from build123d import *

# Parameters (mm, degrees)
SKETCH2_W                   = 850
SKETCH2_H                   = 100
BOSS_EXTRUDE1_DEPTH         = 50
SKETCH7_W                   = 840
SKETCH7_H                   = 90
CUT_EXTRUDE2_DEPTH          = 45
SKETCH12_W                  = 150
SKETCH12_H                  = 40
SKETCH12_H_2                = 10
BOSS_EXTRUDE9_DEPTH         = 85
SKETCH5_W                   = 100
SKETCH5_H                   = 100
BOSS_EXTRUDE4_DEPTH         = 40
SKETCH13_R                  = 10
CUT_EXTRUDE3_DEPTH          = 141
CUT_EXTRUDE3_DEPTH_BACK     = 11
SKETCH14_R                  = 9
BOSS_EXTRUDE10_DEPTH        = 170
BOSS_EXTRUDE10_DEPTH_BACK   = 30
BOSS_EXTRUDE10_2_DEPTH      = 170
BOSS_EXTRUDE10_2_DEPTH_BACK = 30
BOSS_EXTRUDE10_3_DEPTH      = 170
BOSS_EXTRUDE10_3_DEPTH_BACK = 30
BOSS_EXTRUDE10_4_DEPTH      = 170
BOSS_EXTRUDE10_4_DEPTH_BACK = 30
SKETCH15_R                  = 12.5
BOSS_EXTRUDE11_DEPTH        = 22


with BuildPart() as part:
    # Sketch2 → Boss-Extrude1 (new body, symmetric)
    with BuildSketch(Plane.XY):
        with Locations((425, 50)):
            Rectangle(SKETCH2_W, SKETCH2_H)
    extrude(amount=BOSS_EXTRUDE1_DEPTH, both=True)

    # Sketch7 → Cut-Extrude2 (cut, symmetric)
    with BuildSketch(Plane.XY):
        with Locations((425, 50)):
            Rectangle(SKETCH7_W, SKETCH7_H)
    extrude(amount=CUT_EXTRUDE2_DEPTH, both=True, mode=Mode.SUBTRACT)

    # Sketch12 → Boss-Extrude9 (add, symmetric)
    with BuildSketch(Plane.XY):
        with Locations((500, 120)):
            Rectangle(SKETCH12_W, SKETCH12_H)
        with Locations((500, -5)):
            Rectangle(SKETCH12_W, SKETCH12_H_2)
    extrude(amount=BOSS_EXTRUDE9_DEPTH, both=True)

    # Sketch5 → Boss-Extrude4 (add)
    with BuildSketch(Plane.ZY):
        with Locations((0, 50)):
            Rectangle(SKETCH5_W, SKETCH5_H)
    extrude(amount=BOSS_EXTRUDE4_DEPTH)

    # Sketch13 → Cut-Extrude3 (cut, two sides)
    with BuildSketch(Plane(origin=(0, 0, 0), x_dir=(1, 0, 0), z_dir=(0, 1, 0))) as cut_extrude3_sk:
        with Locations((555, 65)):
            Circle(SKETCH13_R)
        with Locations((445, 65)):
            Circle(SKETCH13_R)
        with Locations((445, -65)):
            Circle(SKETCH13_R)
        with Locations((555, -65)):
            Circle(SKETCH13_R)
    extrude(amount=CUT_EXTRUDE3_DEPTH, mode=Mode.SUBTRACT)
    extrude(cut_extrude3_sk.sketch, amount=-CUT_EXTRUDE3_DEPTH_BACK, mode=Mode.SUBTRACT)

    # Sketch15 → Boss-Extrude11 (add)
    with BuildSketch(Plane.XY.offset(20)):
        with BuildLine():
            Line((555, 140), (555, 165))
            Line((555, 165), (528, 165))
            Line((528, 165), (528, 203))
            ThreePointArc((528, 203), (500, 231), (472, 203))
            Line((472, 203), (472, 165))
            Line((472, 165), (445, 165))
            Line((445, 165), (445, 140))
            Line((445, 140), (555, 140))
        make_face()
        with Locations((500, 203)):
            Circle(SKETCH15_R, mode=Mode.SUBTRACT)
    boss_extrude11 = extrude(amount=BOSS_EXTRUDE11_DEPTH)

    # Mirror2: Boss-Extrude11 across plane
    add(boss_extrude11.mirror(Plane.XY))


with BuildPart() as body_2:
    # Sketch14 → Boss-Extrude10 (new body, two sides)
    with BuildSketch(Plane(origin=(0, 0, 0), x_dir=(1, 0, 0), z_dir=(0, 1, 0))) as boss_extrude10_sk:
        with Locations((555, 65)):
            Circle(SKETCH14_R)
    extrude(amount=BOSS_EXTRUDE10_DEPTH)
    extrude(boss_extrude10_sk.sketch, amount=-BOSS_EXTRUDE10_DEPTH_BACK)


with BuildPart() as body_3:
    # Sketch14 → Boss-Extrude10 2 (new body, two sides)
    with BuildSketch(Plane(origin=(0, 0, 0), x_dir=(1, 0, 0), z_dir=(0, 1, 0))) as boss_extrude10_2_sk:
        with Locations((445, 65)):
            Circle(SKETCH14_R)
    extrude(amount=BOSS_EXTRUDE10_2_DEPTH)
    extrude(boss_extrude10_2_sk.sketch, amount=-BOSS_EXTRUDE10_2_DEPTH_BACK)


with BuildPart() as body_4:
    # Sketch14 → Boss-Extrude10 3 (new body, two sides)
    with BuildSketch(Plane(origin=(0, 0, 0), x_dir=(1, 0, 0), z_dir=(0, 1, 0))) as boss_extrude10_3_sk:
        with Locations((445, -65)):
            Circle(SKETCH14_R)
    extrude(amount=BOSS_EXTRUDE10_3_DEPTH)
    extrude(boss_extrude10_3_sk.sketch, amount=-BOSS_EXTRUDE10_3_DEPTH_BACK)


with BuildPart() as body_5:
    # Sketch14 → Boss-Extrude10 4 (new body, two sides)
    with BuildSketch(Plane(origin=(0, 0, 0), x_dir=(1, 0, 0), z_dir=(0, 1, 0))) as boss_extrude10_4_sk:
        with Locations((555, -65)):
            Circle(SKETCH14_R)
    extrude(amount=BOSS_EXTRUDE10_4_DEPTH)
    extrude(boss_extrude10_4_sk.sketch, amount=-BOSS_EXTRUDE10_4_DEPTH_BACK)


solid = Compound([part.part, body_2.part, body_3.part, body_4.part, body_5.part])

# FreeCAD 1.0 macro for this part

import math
import FreeCAD as App
import Part
import Sketcher
from FreeCAD import Vector


def add_polygon(sketch, points):
    """Adds a closed chain of lines whose ends are joined by coincident constraints."""
    first, n = sketch.GeometryCount, len(points)
    for a, b in zip(points, points[1:] + points[:1]):
        sketch.addGeometry(Part.LineSegment(App.Vector(*a, 0), App.Vector(*b, 0)), False)
    for i in range(n):
        sketch.addConstraint(Sketcher.Constraint("Coincident", first + i, 2, first + (i + 1) % n, 1))

doc = App.newDocument("Part")
body = doc.addObject("PartDesign::Body", "Body")

# Sketch on XY plane
sketch1 = body.newObject("Sketcher::SketchObject", "Sketch")
sketch1.AttachmentSupport = (doc.getObject("XY_Plane"), [""])
sketch1.MapMode = "FlatFace"
add_polygon(sketch1, [(0, 100), (0, 0), (850, 0), (850, 100)])  # lines 0-3
sketch1.addConstraint([
    Sketcher.Constraint("Vertical", 0),
    Sketcher.Constraint("Horizontal", 1),
    Sketcher.Constraint("Vertical", 2),
    Sketcher.Constraint("Horizontal", 3),
    Sketcher.Constraint("Coincident", 0, 2, -1, 1),
    Sketcher.Constraint("DistanceX", 1, 1, 1, 2, 850.0),
    Sketcher.Constraint("DistanceY", 0, 2, 0, 1, 100.0),
])
pad1 = body.newObject("PartDesign::Pad", "Pad")
pad1.Profile = sketch1
pad1.Length = 100
pad1.Midplane = True

# Sketch on XY plane
sketch2 = body.newObject("Sketcher::SketchObject", "Sketch001")
sketch2.AttachmentSupport = (doc.getObject("XY_Plane"), [""])
sketch2.MapMode = "FlatFace"
add_polygon(sketch2, [(5, 95), (5, 5), (845, 5), (845, 95)])  # lines 0-3
sketch2.addConstraint([
    Sketcher.Constraint("Vertical", 0),
    Sketcher.Constraint("Horizontal", 1),
    Sketcher.Constraint("Vertical", 2),
    Sketcher.Constraint("Horizontal", 3),
    Sketcher.Constraint("DistanceX", 1, 1, 1, 2, 840.0),
    Sketcher.Constraint("DistanceY", 0, 2, 0, 1, 90.0),
    Sketcher.Constraint("DistanceX", -1, 1, 0, 2, 5.0),
    Sketcher.Constraint("DistanceY", -1, 1, 0, 2, 5.0),
])
pocket1 = body.newObject("PartDesign::Pocket", "Pocket")
pocket1.Profile = sketch2
pocket1.Length = 90
pocket1.Midplane = True

# Sketch on XY plane
sketch3 = body.newObject("Sketcher::SketchObject", "Sketch002")
sketch3.AttachmentSupport = (doc.getObject("XY_Plane"), [""])
sketch3.MapMode = "FlatFace"
add_polygon(sketch3, [(425, 140), (425, 100), (575, 100), (575, 140)])  # lines 0-3
add_polygon(sketch3, [(425, 0), (425, -10), (575, -10), (575, 0)])  # lines 4-7
sketch3.addConstraint([
    Sketcher.Constraint("Vertical", 0),
    Sketcher.Constraint("Horizontal", 1),
    Sketcher.Constraint("Vertical", 2),
    Sketcher.Constraint("Horizontal", 3),
    Sketcher.Constraint("Vertical", 4),
    Sketcher.Constraint("Horizontal", 5),
    Sketcher.Constraint("Vertical", 6),
    Sketcher.Constraint("Horizontal", 7),
    Sketcher.Constraint("PointOnObject", 6, 2, -1),
    Sketcher.Constraint("Vertical", 3, 2, 4, 2),
    Sketcher.Constraint("Vertical", 2, 2, 5, 2),
    Sketcher.Constraint("DistanceX", 1, 1, 1, 2, 150.0),
    Sketcher.Constraint("DistanceY", 0, 2, 0, 1, 40.0),
    Sketcher.Constraint("DistanceY", 4, 2, 4, 1, 10.0),
    Sketcher.Constraint("DistanceX", -1, 1, 0, 2, 425.0),
    Sketcher.Constraint("DistanceY", -1, 1, 0, 2, 100.0),
])
pad2 = body.newObject("PartDesign::Pad", "Pad001")
pad2.Profile = sketch3
pad2.Length = 170
pad2.Midplane = True

# Sketch on YZ plane
sketch4 = body.newObject("Sketcher::SketchObject", "Sketch003")
sketch4.AttachmentSupport = (doc.getObject("YZ_Plane"), [""])
sketch4.MapMode = "FlatFace"
add_polygon(sketch4, [(100, -50), (0, -50), (0, 50), (100, 50)])  # lines 0-3
sketch4.addConstraint([
    Sketcher.Constraint("Horizontal", 0),
    Sketcher.Constraint("Vertical", 1),
    Sketcher.Constraint("Horizontal", 2),
    Sketcher.Constraint("Vertical", 3),
    Sketcher.Constraint("Symmetric", 0, 2, 1, 2, -1, 1),
    Sketcher.Constraint("Equal", 2, 1),
    Sketcher.Constraint("DistanceX", 0, 2, 0, 1, 100.0),
])
pad3 = body.newObject("PartDesign::Pad", "Pad002")
pad3.Profile = sketch4
pad3.Length = 40
pad3.Reversed = True

# Sketch on XZ plane
sketch5 = body.newObject("Sketcher::SketchObject", "Sketch004")
sketch5.AttachmentSupport = (doc.getObject("XZ_Plane"), [""])
sketch5.MapMode = "FlatFace"
sketch5.addGeometry([
    Part.Circle(Vector(555, -65, 0), Vector(0, 0, 1), 10),
    Part.Circle(Vector(445, -65, 0), Vector(0, 0, 1), 10),
    Part.Circle(Vector(445, 65, 0), Vector(0, 0, 1), 10),
    Part.Circle(Vector(555, 65, 0), Vector(0, 0, 1), 10),
], False)
sketch5.addConstraint([
    Sketcher.Constraint("Equal", 0, 1),
    Sketcher.Constraint("Equal", 1, 2),
    Sketcher.Constraint("Equal", 2, 3),
    Sketcher.Constraint("Symmetric", 1, 3, 2, 3, -1),
    Sketcher.Constraint("Symmetric", 0, 3, 3, 3, -1),
    Sketcher.Constraint("Horizontal", 0, 3, 1, 3),
    Sketcher.Constraint("Diameter", 0, 20.0),
    Sketcher.Constraint("DistanceX", -1, 1, 0, 3, 555.0),
    Sketcher.Constraint("DistanceY", 0, 3, -1, 1, 65.0),
    Sketcher.Constraint("DistanceX", -1, 1, 1, 3, 445.0),
])
pocket2 = body.newObject("PartDesign::Pocket", "Pocket001")
pocket2.Profile = sketch5
pocket2.Type = "ThroughAll"
pocket2.Midplane = True

# Sketch on XY plane
sketch6 = body.newObject("Sketcher::SketchObject", "Sketch005")
sketch6.AttachmentSupport = (doc.getObject("XY_Plane"), [""])
sketch6.MapMode = "FlatFace"
sketch6.AttachmentOffset = App.Placement(Vector(0, 0, 20), App.Rotation())
sketch6.addGeometry([
    Part.LineSegment(Vector(555, 140, 0), Vector(555, 165, 0)),  # 0
    Part.LineSegment(Vector(555, 165, 0), Vector(528, 165, 0)),  # 1
    Part.LineSegment(Vector(528, 165, 0), Vector(528, 203, 0)),  # 2
    Part.ArcOfCircle(Part.Circle(Vector(500, 203, 0), Vector(0, 0, 1), 28), math.radians(0), math.radians(180)),  # 3
    Part.LineSegment(Vector(472, 203, 0), Vector(472, 165, 0)),  # 4
    Part.LineSegment(Vector(472, 165, 0), Vector(445, 165, 0)),  # 5
    Part.LineSegment(Vector(445, 165, 0), Vector(445, 140, 0)),  # 6
    Part.LineSegment(Vector(445, 140, 0), Vector(555, 140, 0)),  # 7
    Part.Circle(Vector(500, 203, 0), Vector(0, 0, 1), 12),  # 8
], False)
sketch6.addConstraint([
    Sketcher.Constraint("Coincident", 0, 2, 1, 1),
    Sketcher.Constraint("Coincident", 1, 2, 2, 1),
    Sketcher.Constraint("Tangent", 2, 2, 3, 1),
    Sketcher.Constraint("Tangent", 3, 2, 4, 1),
    Sketcher.Constraint("Coincident", 4, 2, 5, 1),
    Sketcher.Constraint("Coincident", 5, 2, 6, 1),
    Sketcher.Constraint("Coincident", 6, 2, 7, 1),
    Sketcher.Constraint("Coincident", 7, 2, 0, 1),
    Sketcher.Constraint("Vertical", 0),
    Sketcher.Constraint("Horizontal", 1),
    Sketcher.Constraint("Vertical", 2),
    Sketcher.Constraint("Vertical", 4),
    Sketcher.Constraint("Horizontal", 5),
    Sketcher.Constraint("Vertical", 6),
    Sketcher.Constraint("Horizontal", 7),
    Sketcher.Constraint("Coincident", 8, 3, 3, 3),
    Sketcher.Constraint("Horizontal", 1, 2, 4, 2),
    Sketcher.Constraint("Equal", 1, 5),
    Sketcher.Constraint("Diameter", 8, 25.0),
    Sketcher.Constraint("Radius", 3, 28.0),
    Sketcher.Constraint("DistanceX", 1, 2, 1, 1, 27.0),
    Sketcher.Constraint("DistanceY", 0, 1, 0, 2, 25.0),
    Sketcher.Constraint("DistanceY", 2, 1, 2, 2, 38.0),
    Sketcher.Constraint("DistanceX", -1, 1, 3, 3, 500.0),
    Sketcher.Constraint("DistanceY", -1, 1, 3, 3, 203.0),
])
pad4 = body.newObject("PartDesign::Pad", "Pad003")
pad4.Profile = sketch6
pad4.Length = 22
doc.recompute()

mirrored = body.newObject("PartDesign::Mirrored", "Mirrored")
mirrored.Originals = [pad4]
mirrored.MirrorPlane = (doc.getObject("XY_Plane"), [""])
body.Tip = mirrored
body2 = doc.addObject("PartDesign::Body", "Body001")

# Sketch on XZ plane
sketch7 = body2.newObject("Sketcher::SketchObject", "Sketch006")
sketch7.AttachmentSupport = (doc.getObject("XZ_Plane001"), [""])
sketch7.MapMode = "FlatFace"
sketch7.addGeometry(Part.Circle(Vector(555, -65, 0), Vector(0, 0, 1), 9), False)
sketch7.addConstraint([
    Sketcher.Constraint("Diameter", 0, 18.0),
    Sketcher.Constraint("DistanceX", -1, 1, 0, 3, 555.0),
    Sketcher.Constraint("DistanceY", 0, 3, -1, 1, 65.0),
])
pad5 = body2.newObject("PartDesign::Pad", "Pad004")
pad5.Profile = sketch7
pad5.Type = "TwoLengths"
pad5.Length = 170
pad5.Length2 = 30
pad5.Reversed = True
body3 = doc.addObject("PartDesign::Body", "Body002")

# Sketch on XZ plane
sketch8 = body3.newObject("Sketcher::SketchObject", "Sketch007")
sketch8.AttachmentSupport = (doc.getObject("XZ_Plane002"), [""])
sketch8.MapMode = "FlatFace"
sketch8.addGeometry(Part.Circle(Vector(445, -65, 0), Vector(0, 0, 1), 9), False)
sketch8.addConstraint([
    Sketcher.Constraint("Diameter", 0, 18.0),
    Sketcher.Constraint("DistanceX", -1, 1, 0, 3, 445.0),
    Sketcher.Constraint("DistanceY", 0, 3, -1, 1, 65.0),
])
pad6 = body3.newObject("PartDesign::Pad", "Pad005")
pad6.Profile = sketch8
pad6.Type = "TwoLengths"
pad6.Length = 170
pad6.Length2 = 30
pad6.Reversed = True
body4 = doc.addObject("PartDesign::Body", "Body003")

# Sketch on XZ plane
sketch9 = body4.newObject("Sketcher::SketchObject", "Sketch008")
sketch9.AttachmentSupport = (doc.getObject("XZ_Plane003"), [""])
sketch9.MapMode = "FlatFace"
sketch9.addGeometry(Part.Circle(Vector(445, 65, 0), Vector(0, 0, 1), 9), False)
sketch9.addConstraint([
    Sketcher.Constraint("Diameter", 0, 18.0),
    Sketcher.Constraint("DistanceX", -1, 1, 0, 3, 445.0),
    Sketcher.Constraint("DistanceY", -1, 1, 0, 3, 65.0),
])
pad7 = body4.newObject("PartDesign::Pad", "Pad006")
pad7.Profile = sketch9
pad7.Type = "TwoLengths"
pad7.Length = 170
pad7.Length2 = 30
pad7.Reversed = True
body5 = doc.addObject("PartDesign::Body", "Body004")

# Sketch on XZ plane
sketch10 = body5.newObject("Sketcher::SketchObject", "Sketch009")
sketch10.AttachmentSupport = (doc.getObject("XZ_Plane004"), [""])
sketch10.MapMode = "FlatFace"
sketch10.addGeometry(Part.Circle(Vector(555, 65, 0), Vector(0, 0, 1), 9), False)
sketch10.addConstraint([
    Sketcher.Constraint("Diameter", 0, 18.0),
    Sketcher.Constraint("DistanceX", -1, 1, 0, 3, 555.0),
    Sketcher.Constraint("DistanceY", -1, 1, 0, 3, 65.0),
])
pad8 = body5.newObject("PartDesign::Pad", "Pad007")
pad8.Profile = sketch10
pad8.Type = "TwoLengths"
pad8.Length = 170
pad8.Length2 = 30
pad8.Reversed = True

doc.recompute()
